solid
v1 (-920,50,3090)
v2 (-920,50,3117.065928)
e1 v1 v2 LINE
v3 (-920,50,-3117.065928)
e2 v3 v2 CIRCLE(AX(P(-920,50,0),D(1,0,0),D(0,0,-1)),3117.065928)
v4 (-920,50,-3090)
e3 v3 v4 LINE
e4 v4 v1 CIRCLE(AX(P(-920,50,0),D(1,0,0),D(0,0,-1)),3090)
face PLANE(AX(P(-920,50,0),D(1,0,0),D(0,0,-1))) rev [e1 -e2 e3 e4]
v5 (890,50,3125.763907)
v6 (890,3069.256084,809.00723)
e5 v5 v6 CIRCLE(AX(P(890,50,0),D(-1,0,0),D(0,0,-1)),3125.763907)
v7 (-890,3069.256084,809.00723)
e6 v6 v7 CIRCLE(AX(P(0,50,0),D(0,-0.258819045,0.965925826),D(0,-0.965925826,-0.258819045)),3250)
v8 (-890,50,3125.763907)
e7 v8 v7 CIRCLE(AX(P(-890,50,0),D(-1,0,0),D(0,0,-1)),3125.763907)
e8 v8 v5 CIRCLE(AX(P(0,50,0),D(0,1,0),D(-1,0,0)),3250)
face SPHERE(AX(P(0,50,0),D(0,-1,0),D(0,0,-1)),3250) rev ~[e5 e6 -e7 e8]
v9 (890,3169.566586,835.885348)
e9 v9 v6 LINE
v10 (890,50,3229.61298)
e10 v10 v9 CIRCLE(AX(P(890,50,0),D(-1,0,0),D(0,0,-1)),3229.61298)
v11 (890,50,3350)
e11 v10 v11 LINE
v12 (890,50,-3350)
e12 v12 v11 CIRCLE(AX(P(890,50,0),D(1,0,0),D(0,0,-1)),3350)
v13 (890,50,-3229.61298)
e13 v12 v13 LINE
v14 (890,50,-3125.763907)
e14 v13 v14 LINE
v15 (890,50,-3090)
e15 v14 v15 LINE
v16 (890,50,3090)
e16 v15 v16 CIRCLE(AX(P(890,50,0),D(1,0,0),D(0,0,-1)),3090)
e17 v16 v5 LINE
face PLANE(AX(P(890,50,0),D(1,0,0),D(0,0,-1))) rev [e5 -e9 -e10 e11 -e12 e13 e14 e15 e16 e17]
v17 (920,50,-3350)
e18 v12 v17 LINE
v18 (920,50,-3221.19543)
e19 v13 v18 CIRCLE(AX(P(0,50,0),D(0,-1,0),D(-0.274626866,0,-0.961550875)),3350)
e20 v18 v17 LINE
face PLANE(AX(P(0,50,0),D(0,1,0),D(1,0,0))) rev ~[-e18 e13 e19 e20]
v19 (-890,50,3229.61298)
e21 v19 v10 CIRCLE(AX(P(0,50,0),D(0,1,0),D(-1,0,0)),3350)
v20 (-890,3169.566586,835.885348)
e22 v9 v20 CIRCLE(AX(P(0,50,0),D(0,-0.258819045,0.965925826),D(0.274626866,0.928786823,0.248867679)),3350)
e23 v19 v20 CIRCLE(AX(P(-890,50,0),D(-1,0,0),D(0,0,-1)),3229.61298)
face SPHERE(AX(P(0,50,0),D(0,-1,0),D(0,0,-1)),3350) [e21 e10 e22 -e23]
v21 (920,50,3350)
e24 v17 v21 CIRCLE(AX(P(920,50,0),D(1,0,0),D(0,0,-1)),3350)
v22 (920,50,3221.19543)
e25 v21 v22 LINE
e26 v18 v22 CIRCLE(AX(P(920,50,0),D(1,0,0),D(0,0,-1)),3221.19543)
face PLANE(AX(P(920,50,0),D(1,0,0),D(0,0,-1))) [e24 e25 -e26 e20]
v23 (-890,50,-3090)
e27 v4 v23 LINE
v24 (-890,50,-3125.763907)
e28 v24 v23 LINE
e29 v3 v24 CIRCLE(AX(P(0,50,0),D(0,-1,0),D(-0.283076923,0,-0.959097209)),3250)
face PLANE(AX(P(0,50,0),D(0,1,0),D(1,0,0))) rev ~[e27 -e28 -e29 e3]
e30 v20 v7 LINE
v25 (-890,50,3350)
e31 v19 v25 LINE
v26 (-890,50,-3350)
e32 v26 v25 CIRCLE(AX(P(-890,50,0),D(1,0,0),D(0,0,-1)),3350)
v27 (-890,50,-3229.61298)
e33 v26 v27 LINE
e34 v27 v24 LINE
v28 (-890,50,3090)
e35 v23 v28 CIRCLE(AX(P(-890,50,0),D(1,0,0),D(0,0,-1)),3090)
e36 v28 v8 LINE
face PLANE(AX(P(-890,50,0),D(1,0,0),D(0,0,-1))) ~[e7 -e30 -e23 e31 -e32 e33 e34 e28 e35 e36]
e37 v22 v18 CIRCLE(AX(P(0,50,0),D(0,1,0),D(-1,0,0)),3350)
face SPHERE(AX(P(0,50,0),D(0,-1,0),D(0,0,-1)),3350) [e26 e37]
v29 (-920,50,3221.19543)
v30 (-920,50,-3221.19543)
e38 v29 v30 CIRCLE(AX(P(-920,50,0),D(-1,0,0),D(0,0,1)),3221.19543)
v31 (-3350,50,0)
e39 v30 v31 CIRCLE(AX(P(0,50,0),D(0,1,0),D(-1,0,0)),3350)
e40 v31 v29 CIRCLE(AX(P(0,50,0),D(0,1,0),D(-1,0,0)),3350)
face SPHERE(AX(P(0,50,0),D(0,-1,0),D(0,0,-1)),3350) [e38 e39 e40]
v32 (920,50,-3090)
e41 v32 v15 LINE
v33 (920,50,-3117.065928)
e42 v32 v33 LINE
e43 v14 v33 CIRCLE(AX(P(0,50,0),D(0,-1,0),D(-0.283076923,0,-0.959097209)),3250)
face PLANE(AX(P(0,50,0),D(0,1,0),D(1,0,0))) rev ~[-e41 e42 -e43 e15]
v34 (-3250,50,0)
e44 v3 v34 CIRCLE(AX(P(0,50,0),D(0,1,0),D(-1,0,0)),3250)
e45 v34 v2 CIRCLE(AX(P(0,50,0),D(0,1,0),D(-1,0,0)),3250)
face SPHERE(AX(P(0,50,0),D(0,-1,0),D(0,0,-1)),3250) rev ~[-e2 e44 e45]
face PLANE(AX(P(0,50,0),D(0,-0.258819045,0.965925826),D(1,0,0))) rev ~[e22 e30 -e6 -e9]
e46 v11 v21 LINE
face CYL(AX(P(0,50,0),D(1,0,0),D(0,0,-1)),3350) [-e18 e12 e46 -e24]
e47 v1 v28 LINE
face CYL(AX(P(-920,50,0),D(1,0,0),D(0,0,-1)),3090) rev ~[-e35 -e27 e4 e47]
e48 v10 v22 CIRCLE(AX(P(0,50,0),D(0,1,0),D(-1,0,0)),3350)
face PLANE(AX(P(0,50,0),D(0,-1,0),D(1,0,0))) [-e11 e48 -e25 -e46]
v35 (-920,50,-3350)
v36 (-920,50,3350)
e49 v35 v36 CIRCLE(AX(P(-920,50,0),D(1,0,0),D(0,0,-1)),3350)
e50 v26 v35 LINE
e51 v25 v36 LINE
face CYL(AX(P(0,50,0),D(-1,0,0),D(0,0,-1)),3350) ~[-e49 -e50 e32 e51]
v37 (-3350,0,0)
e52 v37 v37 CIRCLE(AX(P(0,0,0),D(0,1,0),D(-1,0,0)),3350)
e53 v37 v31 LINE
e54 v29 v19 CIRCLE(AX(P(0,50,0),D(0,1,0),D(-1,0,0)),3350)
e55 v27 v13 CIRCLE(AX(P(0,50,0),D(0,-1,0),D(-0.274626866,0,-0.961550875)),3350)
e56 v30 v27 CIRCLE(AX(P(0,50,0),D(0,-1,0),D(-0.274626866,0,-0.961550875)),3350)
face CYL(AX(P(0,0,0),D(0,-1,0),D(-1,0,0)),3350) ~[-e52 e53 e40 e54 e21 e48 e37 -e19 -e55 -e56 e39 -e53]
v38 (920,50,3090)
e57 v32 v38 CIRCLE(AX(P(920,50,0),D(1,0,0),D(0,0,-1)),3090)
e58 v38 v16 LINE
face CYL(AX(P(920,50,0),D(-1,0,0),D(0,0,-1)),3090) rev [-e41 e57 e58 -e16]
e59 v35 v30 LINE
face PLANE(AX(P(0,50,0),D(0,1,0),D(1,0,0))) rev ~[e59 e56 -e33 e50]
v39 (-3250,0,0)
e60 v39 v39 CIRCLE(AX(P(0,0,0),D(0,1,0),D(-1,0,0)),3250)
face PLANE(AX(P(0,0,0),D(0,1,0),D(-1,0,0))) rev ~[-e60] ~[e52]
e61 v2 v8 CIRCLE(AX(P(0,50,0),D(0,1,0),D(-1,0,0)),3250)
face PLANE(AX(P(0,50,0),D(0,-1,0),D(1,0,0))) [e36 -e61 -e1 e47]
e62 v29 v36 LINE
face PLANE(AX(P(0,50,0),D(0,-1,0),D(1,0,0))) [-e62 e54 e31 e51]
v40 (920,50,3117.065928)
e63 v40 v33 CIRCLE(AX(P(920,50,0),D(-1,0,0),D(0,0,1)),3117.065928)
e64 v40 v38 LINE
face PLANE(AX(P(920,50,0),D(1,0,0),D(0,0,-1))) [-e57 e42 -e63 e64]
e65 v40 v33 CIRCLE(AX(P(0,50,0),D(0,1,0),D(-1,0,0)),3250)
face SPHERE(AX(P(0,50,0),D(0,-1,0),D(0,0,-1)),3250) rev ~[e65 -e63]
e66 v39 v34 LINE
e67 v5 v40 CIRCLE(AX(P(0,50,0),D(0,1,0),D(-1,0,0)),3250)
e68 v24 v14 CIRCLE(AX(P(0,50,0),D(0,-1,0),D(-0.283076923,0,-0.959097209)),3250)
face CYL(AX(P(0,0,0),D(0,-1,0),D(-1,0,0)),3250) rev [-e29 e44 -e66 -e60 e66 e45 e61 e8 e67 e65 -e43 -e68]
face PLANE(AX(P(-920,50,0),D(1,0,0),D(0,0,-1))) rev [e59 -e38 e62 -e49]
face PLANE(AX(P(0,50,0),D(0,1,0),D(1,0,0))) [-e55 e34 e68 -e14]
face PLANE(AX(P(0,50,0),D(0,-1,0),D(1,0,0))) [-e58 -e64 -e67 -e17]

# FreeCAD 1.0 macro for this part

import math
import FreeCAD as App
import Part
import Sketcher
from FreeCAD import Vector
Q = App.Units.Quantity


def add_polygon(sketch, points):
    """Adds a closed chain of lines whose ends are joined by coincident constraints."""
    first, n = sketch.GeometryCount, len(points)
    for a, b in zip(points, points[1:] + points[:1]):
        sketch.addGeometry(Part.LineSegment(App.Vector(*a, 0), App.Vector(*b, 0)), False)
    for i in range(n):
        sketch.addConstraint(Sketcher.Constraint("Coincident", first + i, 2, first + (i + 1) % n, 1))

doc = App.newDocument("Part")
body = doc.addObject("PartDesign::Body", "Body")

# Sketch on XZ plane
sketch1 = body.newObject("Sketcher::SketchObject", "Sketch")
sketch1.AttachmentSupport = (doc.getObject("XZ_Plane"), [""])
sketch1.MapMode = "FlatFace"
sketch1.addGeometry(Part.Circle(Vector(0, 0, 0), Vector(0, 0, 1), 3350), False)
sketch1.addGeometry(Part.Circle(Vector(0, 0, 0), Vector(0, 0, 1), 3250), False)
sketch1.addConstraint(Sketcher.Constraint("Coincident", 0, 3, -1, 1))
sketch1.addConstraint(Sketcher.Constraint("Coincident", 1, 3, -1, 1))
sketch1.addConstraint(Sketcher.Constraint("Diameter", 0, Q("6700 mm")))
sketch1.addConstraint(Sketcher.Constraint("Diameter", 1, Q("6500 mm")))
pad1 = body.newObject("PartDesign::Pad", "Pad")
pad1.Profile = sketch1
pad1.Length = 50
pad1.Reversed = True

# Sketch on YZ plane
sketch2 = body.newObject("Sketcher::SketchObject", "Sketch001")
sketch2.AttachmentSupport = (doc.getObject("YZ_Plane"), [""])
sketch2.MapMode = "FlatFace"
sketch2.addGeometry(Part.LineSegment(Vector(3300, 0, 0), Vector(3400, 0, 0)), False)
sketch2.addGeometry(Part.ArcOfCircle(Part.Circle(Vector(50, 0, 0), Vector(0, 0, 1), 3350), math.radians(-90), math.radians(0)), False)
sketch2.addGeometry(Part.LineSegment(Vector(50, -3350, 0), Vector(50, -3250, 0)), False)
sketch2.addGeometry(Part.ArcOfCircle(Part.Circle(Vector(50, 0, 0), Vector(0, 0, 1), 3250), math.radians(-90), math.radians(0)), False)
sketch2.addConstraint(Sketcher.Constraint("Coincident", 0, 2, 1, 2))
sketch2.addConstraint(Sketcher.Constraint("Coincident", 1, 1, 2, 1))
sketch2.addConstraint(Sketcher.Constraint("Coincident", 2, 2, 3, 1))
sketch2.addConstraint(Sketcher.Constraint("Coincident", 3, 2, 0, 1))
sketch2.addConstraint(Sketcher.Constraint("Horizontal", 0))
sketch2.addConstraint(Sketcher.Constraint("Vertical", 2))
sketch2.addConstraint(Sketcher.Constraint("Coincident", 3, 3, 1, 3))
sketch2.addConstraint(Sketcher.Constraint("PointOnObject", 1, 3, -1))
sketch2.addConstraint(Sketcher.Constraint("PointOnObject", 0, 2, -1))
sketch2.addConstraint(Sketcher.Constraint("Radius", 1, Q("3350 mm")))
sketch2.addConstraint(Sketcher.Constraint("Radius", 3, Q("3250 mm")))
sketch2.addConstraint(Sketcher.Constraint("DistanceX", -1, 1, 1, 3, Q("50 mm")))
sketch2.addConstraint(Sketcher.Constraint("DistanceX", -1, 1, 2, 2, Q("50 mm")))
revolution = body.newObject("PartDesign::Revolution", "Revolution")
revolution.Profile = sketch2
revolution.ReferenceAxis = (sketch2, ["H_Axis"])
revolution.Angle = 360

# Sketch on XZ plane
sketch3 = body.newObject("Sketcher::SketchObject", "Sketch002")
sketch3.AttachmentSupport = (doc.getObject("XZ_Plane"), [""])
sketch3.MapMode = "FlatFace"
sketch3.AttachmentOffset = App.Placement(Vector(0, 0, -50), App.Rotation())
add_polygon(sketch3, [(920, -3117), (920, -3350), (-920, -3350), (-920, -3117)])  # lines 0-3
sketch3.addConstraint(Sketcher.Constraint("Vertical", 0))
sketch3.addConstraint(Sketcher.Constraint("Horizontal", 1))
sketch3.addConstraint(Sketcher.Constraint("Vertical", 2))
sketch3.addConstraint(Sketcher.Constraint("Horizontal", 3))
sketch3.addConstraint(Sketcher.Constraint("DistanceX", 1, 2, 1, 1, Q("1840 mm")))
sketch3.addConstraint(Sketcher.Constraint("DistanceX", -1, 1, 0, 2, Q("920 mm")))
sketch3.addConstraint(Sketcher.Constraint("DistanceY", 0, 2, -1, 1, Q("3350 mm")))
sketch3.addConstraint(Sketcher.Constraint("DistanceY", 0, 2, 0, 1, Q("232.934 mm")))
groove = body.newObject("PartDesign::Groove", "Groove")
groove.Profile = sketch3
groove.ReferenceAxis = (sketch3, ["H_Axis"])
groove.Angle = 105

# Sketch on XZ plane
sketch4 = body.newObject("Sketcher::SketchObject", "Sketch003")
sketch4.AttachmentSupport = (doc.getObject("XZ_Plane"), [""])
sketch4.MapMode = "FlatFace"
sketch4.AttachmentOffset = App.Placement(Vector(0, 0, -50), App.Rotation())
add_polygon(sketch4, [(-920, -3090), (-890, -3090), (-890, -3350), (-920, -3350)])  # lines 0-3
add_polygon(sketch4, [(890, -3090), (920, -3090), (920, -3350), (890, -3350)])  # lines 4-7
sketch4.addConstraint(Sketcher.Constraint("Horizontal", 0))
sketch4.addConstraint(Sketcher.Constraint("Vertical", 1))
sketch4.addConstraint(Sketcher.Constraint("Horizontal", 2))
sketch4.addConstraint(Sketcher.Constraint("Vertical", 3))
sketch4.addConstraint(Sketcher.Constraint("Horizontal", 4))
sketch4.addConstraint(Sketcher.Constraint("Vertical", 5))
sketch4.addConstraint(Sketcher.Constraint("Horizontal", 6))
sketch4.addConstraint(Sketcher.Constraint("Vertical", 7))
sketch4.addConstraint(Sketcher.Constraint("Symmetric", 3, 2, 4, 2, -2))
sketch4.addConstraint(Sketcher.Constraint("Symmetric", 1, 2, 6, 2, -2))
sketch4.addConstraint(Sketcher.Constraint("DistanceX", 0, 1, 0, 2, Q("30 mm")))
sketch4.addConstraint(Sketcher.Constraint("DistanceY", 1, 2, 1, 1, Q("260 mm")))
sketch4.addConstraint(Sketcher.Constraint("DistanceX", 0, 2, -1, 1, Q("890 mm")))
sketch4.addConstraint(Sketcher.Constraint("DistanceY", 0, 2, -1, 1, Q("3090 mm")))
revolution2 = body.newObject("PartDesign::Revolution", "Revolution001")
revolution2.Profile = sketch4
revolution2.ReferenceAxis = (sketch4, ["H_Axis"])
revolution2.Angle = 180

doc.recompute()
